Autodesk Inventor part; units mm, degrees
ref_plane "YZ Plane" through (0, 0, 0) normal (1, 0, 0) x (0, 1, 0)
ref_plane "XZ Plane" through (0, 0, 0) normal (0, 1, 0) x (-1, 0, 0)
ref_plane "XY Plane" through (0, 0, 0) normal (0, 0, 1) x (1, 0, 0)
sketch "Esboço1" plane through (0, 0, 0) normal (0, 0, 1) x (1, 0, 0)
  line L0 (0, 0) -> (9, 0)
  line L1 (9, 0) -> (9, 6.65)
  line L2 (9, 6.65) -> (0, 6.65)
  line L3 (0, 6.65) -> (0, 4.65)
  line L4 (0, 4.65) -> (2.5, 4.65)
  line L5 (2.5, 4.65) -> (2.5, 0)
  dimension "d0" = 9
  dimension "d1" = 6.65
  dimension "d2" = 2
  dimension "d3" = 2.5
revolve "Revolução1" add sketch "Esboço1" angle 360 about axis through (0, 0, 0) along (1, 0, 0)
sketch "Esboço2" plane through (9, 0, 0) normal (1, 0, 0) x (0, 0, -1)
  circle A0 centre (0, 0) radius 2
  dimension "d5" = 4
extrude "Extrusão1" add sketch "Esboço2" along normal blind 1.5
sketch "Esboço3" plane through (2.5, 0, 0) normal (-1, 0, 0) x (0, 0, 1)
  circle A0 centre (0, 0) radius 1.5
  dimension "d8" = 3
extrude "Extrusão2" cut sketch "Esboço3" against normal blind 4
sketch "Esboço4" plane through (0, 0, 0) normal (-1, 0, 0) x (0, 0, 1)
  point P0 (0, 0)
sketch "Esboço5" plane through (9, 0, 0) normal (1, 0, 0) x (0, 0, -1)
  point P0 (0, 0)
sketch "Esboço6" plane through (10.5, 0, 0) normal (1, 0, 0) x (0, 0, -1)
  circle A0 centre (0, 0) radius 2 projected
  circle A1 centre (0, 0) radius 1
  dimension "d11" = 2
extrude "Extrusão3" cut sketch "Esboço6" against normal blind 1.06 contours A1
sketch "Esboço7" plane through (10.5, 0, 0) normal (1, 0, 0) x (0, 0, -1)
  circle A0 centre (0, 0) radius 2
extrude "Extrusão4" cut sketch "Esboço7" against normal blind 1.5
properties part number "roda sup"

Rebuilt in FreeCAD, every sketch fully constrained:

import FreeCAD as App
import Part
import Sketcher
from FreeCAD import Vector


def add_polygon(sketch, points):
    """Adds a closed chain of lines whose ends are joined by coincident constraints."""
    first, n = sketch.GeometryCount, len(points)
    for a, b in zip(points, points[1:] + points[:1]):
        sketch.addGeometry(Part.LineSegment(App.Vector(*a, 0), App.Vector(*b, 0)), False)
    for i in range(n):
        sketch.addConstraint(Sketcher.Constraint("Coincident", first + i, 2, first + (i + 1) % n, 1))

doc = App.newDocument("Part")
body = doc.addObject("PartDesign::Body", "Body")

sketch1 = doc.addObject("Sketcher::SketchObject", "Sketch")
body.addObject(sketch1)
sketch1.AttachmentSupport = (doc.XY_Plane, [""])
sketch1.MapMode = "FlatFace"
add_polygon(sketch1, [(2.5, 4.65), (2.5, 0), (9, 0), (9, 6.65), (0, 6.65), (0, 4.65)])
sketch1.addConstraint([
    Sketcher.Constraint("Vertical", 0),
    Sketcher.Constraint("Horizontal", 1),
    Sketcher.Constraint("Vertical", 2),
    Sketcher.Constraint("Horizontal", 3),
    Sketcher.Constraint("Vertical", 4),
    Sketcher.Constraint("Horizontal", 5),
    Sketcher.Constraint("PointOnObject", 0, 2, -1),
    Sketcher.Constraint("PointOnObject", 3, 2, -2),
    Sketcher.Constraint("DistanceX", 3, 2, 3, 1, 9.0),
    Sketcher.Constraint("DistanceY", 4, 2, 4, 1, 2.0),
    Sketcher.Constraint("DistanceX", 5, 1, 5, 2, 2.5),
    Sketcher.Constraint("DistanceY", 2, 1, 2, 2, 6.65),
])
revolution = doc.addObject("PartDesign::Revolution", "Revolution")
body.addObject(revolution)
revolution.Profile = sketch1
revolution.ReferenceAxis = (sketch1, ["H_Axis"])
revolution.Angle = 360

sketch2 = doc.addObject("Sketcher::SketchObject", "Sketch001")
body.addObject(sketch2)
sketch2.AttachmentSupport = (doc.YZ_Plane, [""])
sketch2.MapMode = "FlatFace"
sketch2.AttachmentOffset = App.Placement(Vector(0, 0, 9), App.Rotation())
sketch2.addGeometry(Part.Circle(Vector(0, 0, 0), Vector(0, 0, 1), 2), False)
sketch2.addConstraint([
    Sketcher.Constraint("Coincident", 0, 3, -1, 1),
    Sketcher.Constraint("Diameter", 0, 4.0),
])
pad1 = doc.addObject("PartDesign::Pad", "Pad")
body.addObject(pad1)
pad1.Profile = sketch2
pad1.Length = 1.5

sketch3 = doc.addObject("Sketcher::SketchObject", "Sketch002")
body.addObject(sketch3)
sketch3.AttachmentSupport = (doc.YZ_Plane, [""])
sketch3.MapMode = "FlatFace"
sketch3.AttachmentOffset = App.Placement(Vector(0, 0, 2.5), App.Rotation())
sketch3.addGeometry(Part.Circle(Vector(0, 0, 0), Vector(0, 0, 1), 1.5), False)
sketch3.addConstraint([
    Sketcher.Constraint("Coincident", 0, 3, -1, 1),
    Sketcher.Constraint("Diameter", 0, 3.0),
])
pocket1 = doc.addObject("PartDesign::Pocket", "Pocket")
body.addObject(pocket1)
pocket1.Profile = sketch3
pocket1.Length = 4
pocket1.Reversed = True

sketch4 = doc.addObject("Sketcher::SketchObject", "Sketch003")
body.addObject(sketch4)
sketch4.AttachmentSupport = (doc.YZ_Plane, [""])
sketch4.MapMode = "FlatFace"
sketch4.AttachmentOffset = App.Placement(Vector(0, 0, 10.5), App.Rotation())
sketch4.addGeometry(Part.Circle(Vector(0, 0, 0), Vector(0, 0, 1), 1), False)
sketch4.addConstraint([
    Sketcher.Constraint("Coincident", 0, 3, -1, 1),
    Sketcher.Constraint("Diameter", 0, 2.0),
])
pocket2 = doc.addObject("PartDesign::Pocket", "Pocket001")
body.addObject(pocket2)
pocket2.Profile = sketch4
pocket2.Length = 1.06

sketch5 = doc.addObject("Sketcher::SketchObject", "Sketch004")
body.addObject(sketch5)
sketch5.AttachmentSupport = (doc.YZ_Plane, [""])
sketch5.MapMode = "FlatFace"
sketch5.AttachmentOffset = App.Placement(Vector(0, 0, 10.5), App.Rotation())
sketch5.addGeometry(Part.Circle(Vector(0, 0, 0), Vector(0, 0, 1), 2), False)
sketch5.addConstraint([
    Sketcher.Constraint("Coincident", 0, 3, -1, 1),
    Sketcher.Constraint("Diameter", 0, 4.0),
])
pocket3 = doc.addObject("PartDesign::Pocket", "Pocket002")
body.addObject(pocket3)
pocket3.Profile = sketch5
pocket3.Length = 1.5

doc.recompute()
